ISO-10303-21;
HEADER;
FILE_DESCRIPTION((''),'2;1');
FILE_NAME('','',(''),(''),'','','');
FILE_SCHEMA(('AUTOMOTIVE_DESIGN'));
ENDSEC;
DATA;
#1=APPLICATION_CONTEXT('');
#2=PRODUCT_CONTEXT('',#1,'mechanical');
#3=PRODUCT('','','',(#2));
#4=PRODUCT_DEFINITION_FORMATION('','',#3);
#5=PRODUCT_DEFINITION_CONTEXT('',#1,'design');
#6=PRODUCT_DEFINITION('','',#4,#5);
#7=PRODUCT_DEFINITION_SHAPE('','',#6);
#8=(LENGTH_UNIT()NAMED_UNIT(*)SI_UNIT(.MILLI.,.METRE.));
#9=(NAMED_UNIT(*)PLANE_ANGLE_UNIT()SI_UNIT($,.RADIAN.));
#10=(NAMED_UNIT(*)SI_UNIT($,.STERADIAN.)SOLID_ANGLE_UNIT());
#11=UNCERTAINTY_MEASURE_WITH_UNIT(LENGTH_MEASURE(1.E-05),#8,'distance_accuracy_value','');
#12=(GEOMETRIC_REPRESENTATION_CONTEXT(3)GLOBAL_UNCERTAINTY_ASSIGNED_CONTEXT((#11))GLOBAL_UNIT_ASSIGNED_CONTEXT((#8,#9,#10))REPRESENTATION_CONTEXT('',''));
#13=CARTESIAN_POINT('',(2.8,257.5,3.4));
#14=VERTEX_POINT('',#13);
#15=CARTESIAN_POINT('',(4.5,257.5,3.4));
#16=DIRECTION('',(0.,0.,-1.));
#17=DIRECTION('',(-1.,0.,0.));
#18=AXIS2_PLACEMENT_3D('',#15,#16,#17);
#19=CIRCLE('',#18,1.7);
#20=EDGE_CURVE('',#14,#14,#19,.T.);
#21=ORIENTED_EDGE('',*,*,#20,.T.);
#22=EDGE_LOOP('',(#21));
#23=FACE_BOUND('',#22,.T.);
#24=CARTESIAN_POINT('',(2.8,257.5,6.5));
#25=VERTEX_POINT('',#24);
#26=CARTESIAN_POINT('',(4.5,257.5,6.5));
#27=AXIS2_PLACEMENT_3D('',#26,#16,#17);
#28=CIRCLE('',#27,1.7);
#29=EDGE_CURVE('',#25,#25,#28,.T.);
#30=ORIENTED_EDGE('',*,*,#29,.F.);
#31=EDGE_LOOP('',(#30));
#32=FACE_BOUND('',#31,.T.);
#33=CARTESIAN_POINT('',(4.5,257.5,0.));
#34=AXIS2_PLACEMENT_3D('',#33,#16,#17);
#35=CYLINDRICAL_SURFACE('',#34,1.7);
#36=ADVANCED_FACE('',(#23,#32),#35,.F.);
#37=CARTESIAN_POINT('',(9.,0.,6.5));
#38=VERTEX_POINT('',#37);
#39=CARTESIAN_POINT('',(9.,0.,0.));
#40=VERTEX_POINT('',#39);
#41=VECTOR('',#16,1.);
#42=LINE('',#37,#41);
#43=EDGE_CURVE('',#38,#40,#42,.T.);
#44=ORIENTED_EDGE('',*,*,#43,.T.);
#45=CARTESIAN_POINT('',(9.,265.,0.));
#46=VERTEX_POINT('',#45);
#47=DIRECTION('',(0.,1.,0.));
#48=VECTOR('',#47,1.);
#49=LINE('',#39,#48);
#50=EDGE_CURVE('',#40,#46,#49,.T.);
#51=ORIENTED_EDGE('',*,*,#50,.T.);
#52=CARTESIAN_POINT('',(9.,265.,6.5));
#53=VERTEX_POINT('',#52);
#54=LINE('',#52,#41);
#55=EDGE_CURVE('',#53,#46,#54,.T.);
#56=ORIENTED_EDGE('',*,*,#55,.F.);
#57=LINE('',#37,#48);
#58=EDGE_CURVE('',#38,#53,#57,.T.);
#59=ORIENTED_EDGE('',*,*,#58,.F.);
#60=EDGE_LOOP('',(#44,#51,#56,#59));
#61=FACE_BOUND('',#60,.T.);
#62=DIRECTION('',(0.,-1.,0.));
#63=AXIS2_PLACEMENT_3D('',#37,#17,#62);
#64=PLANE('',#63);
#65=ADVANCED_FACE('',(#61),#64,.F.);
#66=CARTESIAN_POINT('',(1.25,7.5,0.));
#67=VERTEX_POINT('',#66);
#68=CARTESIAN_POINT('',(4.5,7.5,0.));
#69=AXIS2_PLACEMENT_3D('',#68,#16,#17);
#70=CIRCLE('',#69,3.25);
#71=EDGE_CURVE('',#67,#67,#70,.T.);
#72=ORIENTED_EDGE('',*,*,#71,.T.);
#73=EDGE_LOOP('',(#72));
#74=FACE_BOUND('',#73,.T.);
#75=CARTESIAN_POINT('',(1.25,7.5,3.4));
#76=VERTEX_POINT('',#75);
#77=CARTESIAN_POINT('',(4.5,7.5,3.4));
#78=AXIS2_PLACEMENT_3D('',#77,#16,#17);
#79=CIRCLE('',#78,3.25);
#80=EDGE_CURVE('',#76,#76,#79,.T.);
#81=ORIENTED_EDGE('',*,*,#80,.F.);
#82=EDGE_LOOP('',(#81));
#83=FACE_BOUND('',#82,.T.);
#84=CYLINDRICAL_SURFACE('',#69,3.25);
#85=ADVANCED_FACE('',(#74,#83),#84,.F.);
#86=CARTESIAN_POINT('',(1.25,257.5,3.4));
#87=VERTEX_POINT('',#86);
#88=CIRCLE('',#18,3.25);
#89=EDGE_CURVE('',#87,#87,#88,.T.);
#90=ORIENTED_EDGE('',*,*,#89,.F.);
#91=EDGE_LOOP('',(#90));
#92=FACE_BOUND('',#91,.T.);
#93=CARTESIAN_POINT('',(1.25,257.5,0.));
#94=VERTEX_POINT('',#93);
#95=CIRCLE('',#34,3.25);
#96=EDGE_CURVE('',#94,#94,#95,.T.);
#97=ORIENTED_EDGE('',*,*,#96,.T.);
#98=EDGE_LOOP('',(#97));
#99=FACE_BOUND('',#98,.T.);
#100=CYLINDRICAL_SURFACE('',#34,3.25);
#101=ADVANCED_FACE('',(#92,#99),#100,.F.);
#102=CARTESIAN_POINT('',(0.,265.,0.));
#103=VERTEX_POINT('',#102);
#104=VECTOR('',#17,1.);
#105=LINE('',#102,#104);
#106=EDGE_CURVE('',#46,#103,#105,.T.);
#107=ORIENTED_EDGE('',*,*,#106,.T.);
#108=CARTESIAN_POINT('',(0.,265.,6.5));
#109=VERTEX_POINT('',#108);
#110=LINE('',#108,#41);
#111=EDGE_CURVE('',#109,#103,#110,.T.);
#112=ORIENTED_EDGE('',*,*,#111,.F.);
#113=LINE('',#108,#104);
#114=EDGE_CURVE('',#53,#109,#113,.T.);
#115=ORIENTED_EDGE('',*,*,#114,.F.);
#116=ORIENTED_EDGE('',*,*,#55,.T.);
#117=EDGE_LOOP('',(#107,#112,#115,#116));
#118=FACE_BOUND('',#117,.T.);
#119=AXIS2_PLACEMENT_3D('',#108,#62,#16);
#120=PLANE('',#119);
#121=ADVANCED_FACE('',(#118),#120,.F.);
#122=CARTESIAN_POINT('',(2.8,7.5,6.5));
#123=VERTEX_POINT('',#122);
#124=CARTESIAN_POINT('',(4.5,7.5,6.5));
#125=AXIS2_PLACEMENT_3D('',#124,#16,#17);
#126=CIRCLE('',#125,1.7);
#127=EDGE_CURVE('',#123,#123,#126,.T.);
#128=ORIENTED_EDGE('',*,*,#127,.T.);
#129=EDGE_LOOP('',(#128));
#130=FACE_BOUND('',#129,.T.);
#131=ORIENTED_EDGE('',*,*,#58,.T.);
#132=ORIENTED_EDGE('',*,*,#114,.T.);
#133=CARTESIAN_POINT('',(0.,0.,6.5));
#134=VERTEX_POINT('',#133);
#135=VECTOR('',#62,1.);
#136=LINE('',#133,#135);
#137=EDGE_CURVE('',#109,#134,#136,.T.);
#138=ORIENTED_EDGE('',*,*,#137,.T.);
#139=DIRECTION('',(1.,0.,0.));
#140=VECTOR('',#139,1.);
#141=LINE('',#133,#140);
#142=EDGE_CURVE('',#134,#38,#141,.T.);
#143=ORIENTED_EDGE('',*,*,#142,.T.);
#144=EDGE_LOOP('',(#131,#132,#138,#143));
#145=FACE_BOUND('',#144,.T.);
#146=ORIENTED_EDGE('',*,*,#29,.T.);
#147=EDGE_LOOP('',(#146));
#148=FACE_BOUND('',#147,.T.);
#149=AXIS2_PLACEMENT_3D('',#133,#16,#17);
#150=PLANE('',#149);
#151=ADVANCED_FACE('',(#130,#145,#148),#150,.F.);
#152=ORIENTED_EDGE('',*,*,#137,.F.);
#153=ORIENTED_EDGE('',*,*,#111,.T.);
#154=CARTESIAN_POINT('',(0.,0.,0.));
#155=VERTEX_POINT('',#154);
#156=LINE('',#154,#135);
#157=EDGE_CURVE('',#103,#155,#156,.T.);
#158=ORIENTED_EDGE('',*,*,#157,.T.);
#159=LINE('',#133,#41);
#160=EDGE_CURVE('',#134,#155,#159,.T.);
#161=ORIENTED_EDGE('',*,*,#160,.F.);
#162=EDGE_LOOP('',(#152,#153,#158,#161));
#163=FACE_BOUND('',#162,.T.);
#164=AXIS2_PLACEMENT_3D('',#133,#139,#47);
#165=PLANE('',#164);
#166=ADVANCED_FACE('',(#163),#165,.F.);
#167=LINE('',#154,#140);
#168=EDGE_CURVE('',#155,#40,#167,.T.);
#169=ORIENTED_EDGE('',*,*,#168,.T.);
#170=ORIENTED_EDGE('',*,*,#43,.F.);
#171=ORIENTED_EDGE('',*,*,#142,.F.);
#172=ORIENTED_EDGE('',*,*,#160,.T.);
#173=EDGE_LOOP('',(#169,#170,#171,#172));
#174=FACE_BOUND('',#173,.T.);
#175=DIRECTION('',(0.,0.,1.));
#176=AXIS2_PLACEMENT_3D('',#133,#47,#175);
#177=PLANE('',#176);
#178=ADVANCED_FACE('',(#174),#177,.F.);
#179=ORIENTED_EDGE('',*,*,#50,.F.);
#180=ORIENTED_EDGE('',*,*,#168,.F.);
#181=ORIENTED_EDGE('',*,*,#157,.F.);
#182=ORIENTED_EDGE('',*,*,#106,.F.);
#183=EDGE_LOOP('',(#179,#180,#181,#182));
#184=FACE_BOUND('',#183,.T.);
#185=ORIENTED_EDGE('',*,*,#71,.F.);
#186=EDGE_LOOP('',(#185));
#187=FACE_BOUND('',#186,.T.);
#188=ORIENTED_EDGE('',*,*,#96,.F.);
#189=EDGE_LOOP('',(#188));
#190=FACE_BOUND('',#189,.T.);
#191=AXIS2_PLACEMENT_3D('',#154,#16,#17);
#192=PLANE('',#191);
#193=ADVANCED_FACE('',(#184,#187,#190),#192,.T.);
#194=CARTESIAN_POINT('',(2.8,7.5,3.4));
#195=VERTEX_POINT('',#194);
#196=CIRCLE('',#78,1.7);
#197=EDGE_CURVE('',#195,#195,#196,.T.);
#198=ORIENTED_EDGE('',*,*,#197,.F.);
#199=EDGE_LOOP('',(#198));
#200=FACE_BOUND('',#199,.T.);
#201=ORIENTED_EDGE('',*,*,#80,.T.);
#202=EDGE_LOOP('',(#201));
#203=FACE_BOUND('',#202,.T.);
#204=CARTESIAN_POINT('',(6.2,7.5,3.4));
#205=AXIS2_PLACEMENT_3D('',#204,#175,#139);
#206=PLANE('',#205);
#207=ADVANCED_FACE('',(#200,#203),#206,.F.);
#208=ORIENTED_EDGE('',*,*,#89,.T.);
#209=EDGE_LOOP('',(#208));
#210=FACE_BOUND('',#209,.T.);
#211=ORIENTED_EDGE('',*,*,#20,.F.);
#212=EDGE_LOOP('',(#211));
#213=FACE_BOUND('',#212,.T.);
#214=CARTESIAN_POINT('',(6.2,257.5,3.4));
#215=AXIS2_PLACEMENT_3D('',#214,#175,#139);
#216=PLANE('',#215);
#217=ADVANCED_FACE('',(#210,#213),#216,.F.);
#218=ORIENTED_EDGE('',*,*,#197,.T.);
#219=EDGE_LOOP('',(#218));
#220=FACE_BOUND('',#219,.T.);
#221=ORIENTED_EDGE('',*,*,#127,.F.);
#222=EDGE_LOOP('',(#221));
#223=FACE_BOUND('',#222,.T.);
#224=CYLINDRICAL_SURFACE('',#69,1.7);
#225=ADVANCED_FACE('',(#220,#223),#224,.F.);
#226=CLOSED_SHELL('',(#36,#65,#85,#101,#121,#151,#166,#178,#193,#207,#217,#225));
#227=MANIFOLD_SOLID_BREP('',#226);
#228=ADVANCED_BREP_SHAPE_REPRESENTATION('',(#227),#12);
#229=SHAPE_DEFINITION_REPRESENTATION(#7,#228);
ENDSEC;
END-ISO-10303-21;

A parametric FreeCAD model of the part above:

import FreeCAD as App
import Part
import Sketcher
from FreeCAD import Vector
Q = App.Units.Quantity


def add_polygon(sketch, points):
    """Adds a closed chain of lines whose ends are joined by coincident constraints."""
    first, n = sketch.GeometryCount, len(points)
    for a, b in zip(points, points[1:] + points[:1]):
        sketch.addGeometry(Part.LineSegment(App.Vector(*a, 0), App.Vector(*b, 0)), False)
    for i in range(n):
        sketch.addConstraint(Sketcher.Constraint("Coincident", first + i, 2, first + (i + 1) % n, 1))

doc = App.newDocument("Part")
params = doc.addObject("Spreadsheet::Sheet", "Params")
for row, (alias, value) in enumerate([
    ("sketch1_width", "9 mm"),
    ("sketch1_height", "265 mm"),
    ("pad1_length", "6.5 mm"),
    ("sketch2_diameter", "3.4 mm"),
    ("hole_diameter", "3.4 mm"),
    ("hole_depth", "10.1 mm"),
    ("hole_cbore_diameter", "6.5 mm"),
    ("hole_cbore_depth", "3.4 mm"),
], start=1):
    params.set(f"A{row}", alias)
    params.set(f"B{row}", "=" + value)
    params.setAlias(f"B{row}", alias)

body = doc.addObject("PartDesign::Body", "Body")

# Sketch on XY plane
sketch1 = body.newObject("Sketcher::SketchObject", "Sketch")
sketch1.AttachmentSupport = (doc.getObject("XY_Plane"), [""])
sketch1.MapMode = "FlatFace"
add_polygon(sketch1, [(0, 265), (0, 0), (9, 0), (9, 265)])  # lines 0-3
sketch1.addConstraint([
    Sketcher.Constraint("Vertical", 0),
    Sketcher.Constraint("Horizontal", 1),
    Sketcher.Constraint("Vertical", 2),
    Sketcher.Constraint("Horizontal", 3),
    Sketcher.Constraint("Coincident", 0, 2, -1, 1),
    Sketcher.Constraint("DistanceX", 1, 1, 1, 2, Q("9 mm")),
    Sketcher.Constraint("DistanceY", 0, 2, 0, 1, Q("265 mm")),
])
sketch1.setExpression("Constraints[9]", "Params.sketch1_width")
sketch1.setExpression("Constraints[10]", "Params.sketch1_height")
pad1 = body.newObject("PartDesign::Pad", "Pad")
pad1.Profile = sketch1
pad1.setExpression("Length", "Params.pad1_length")

# Sketch on XY plane
sketch2 = body.newObject("Sketcher::SketchObject", "Sketch001")
sketch2.AttachmentSupport = (doc.getObject("XY_Plane"), [""])
sketch2.MapMode = "FlatFace"
sketch2.addGeometry([
    Part.Circle(Vector(4.5, 7.5, 0), Vector(0, 0, 1), 1.7),
    Part.Circle(Vector(4.5, 257.5, 0), Vector(0, 0, 1), 1.7),
], False)
sketch2.addConstraint([
    Sketcher.Constraint("Equal", 0, 1),
    Sketcher.Constraint("Vertical", 0, 3, 1, 3),
    Sketcher.Constraint("Diameter", 0, Q("3.4 mm")),
    Sketcher.Constraint("DistanceY", 0, 3, 1, 3, Q("250 mm")),
    Sketcher.Constraint("DistanceX", -1, 1, 0, 3, Q("4.5 mm")),
    Sketcher.Constraint("DistanceY", -1, 1, 0, 3, Q("7.5 mm")),
])
sketch2.setExpression("Constraints[2]", "Params.sketch2_diameter")
doc.recompute()
hole = body.newObject("PartDesign::Hole", "Hole")
hole.Profile = sketch2
hole.ThreadType = "None"
hole.setExpression("Diameter", "Params.hole_diameter")
hole.DepthType = "Dimension"
hole.setExpression("Depth", "Params.hole_depth")
hole.DrillPoint = "Angled"
hole.DrillPointAngle = 118
hole.HoleCutType = "Counterbore"
hole.setExpression("HoleCutDiameter", "Params.hole_cbore_diameter")
hole.setExpression("HoleCutDepth", "Params.hole_cbore_depth")
hole.Reversed = True

doc.recompute()
